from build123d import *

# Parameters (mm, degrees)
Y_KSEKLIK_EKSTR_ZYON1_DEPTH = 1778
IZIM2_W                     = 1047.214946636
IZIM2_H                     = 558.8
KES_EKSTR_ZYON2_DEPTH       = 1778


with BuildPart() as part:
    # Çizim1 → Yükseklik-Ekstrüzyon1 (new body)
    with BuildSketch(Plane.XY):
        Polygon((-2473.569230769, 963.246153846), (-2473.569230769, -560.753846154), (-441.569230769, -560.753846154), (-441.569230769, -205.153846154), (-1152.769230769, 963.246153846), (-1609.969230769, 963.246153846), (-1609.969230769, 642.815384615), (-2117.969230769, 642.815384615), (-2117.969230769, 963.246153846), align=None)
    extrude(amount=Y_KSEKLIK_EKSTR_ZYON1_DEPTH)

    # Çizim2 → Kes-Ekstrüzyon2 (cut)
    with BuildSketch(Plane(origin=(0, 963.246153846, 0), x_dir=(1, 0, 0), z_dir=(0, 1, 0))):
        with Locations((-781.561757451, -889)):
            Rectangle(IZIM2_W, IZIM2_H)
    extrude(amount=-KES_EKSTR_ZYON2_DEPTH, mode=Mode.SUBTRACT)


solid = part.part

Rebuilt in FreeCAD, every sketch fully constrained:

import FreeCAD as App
import Part
import Sketcher
Q = App.Units.Quantity

doc = App.newDocument("Part")
body = doc.addObject("PartDesign::Body", "Body")

sketch1 = body.newObject("Sketcher::SketchObject", "Sketch")
sketch1.AttachmentSupport = (doc.getObject("XY_Plane"), [""])
sketch1.MapMode = "FlatFace"
sketch1.addGeometry(Part.LineSegment(App.Vector(-2473.569231, 963.246154, 0), App.Vector(-2473.569231, -560.753846, 0)), False)
sketch1.addGeometry(Part.LineSegment(App.Vector(-2473.569231, -560.753846, 0), App.Vector(-441.569231, -560.753846, 0)), False)
sketch1.addGeometry(Part.LineSegment(App.Vector(-441.569231, -560.753846, 0), App.Vector(-441.569231, -205.153846, 0)), False)
sketch1.addGeometry(Part.LineSegment(App.Vector(-441.569231, -205.153846, 0), App.Vector(-1152.769231, 963.246154, 0)), False)
sketch1.addGeometry(Part.LineSegment(App.Vector(-1152.769231, 963.246154, 0), App.Vector(-1609.969231, 963.246154, 0)), False)
sketch1.addGeometry(Part.LineSegment(App.Vector(-1609.969231, 963.246154, 0), App.Vector(-1609.969231, 642.815385, 0)), False)
sketch1.addGeometry(Part.LineSegment(App.Vector(-1609.969231, 642.815385, 0), App.Vector(-2117.969231, 642.815385, 0)), False)
sketch1.addGeometry(Part.LineSegment(App.Vector(-2117.969231, 642.815385, 0), App.Vector(-2117.969231, 963.246154, 0)), False)
sketch1.addGeometry(Part.LineSegment(App.Vector(-2117.969231, 963.246154, 0), App.Vector(-2473.569231, 963.246154, 0)), False)
sketch1.addConstraint(Sketcher.Constraint("Coincident", 0, 2, 1, 1))
sketch1.addConstraint(Sketcher.Constraint("Coincident", 1, 2, 2, 1))
sketch1.addConstraint(Sketcher.Constraint("Coincident", 2, 2, 3, 1))
sketch1.addConstraint(Sketcher.Constraint("Coincident", 3, 2, 4, 1))
sketch1.addConstraint(Sketcher.Constraint("Coincident", 4, 2, 5, 1))
sketch1.addConstraint(Sketcher.Constraint("Coincident", 5, 2, 6, 1))
sketch1.addConstraint(Sketcher.Constraint("Coincident", 6, 2, 7, 1))
sketch1.addConstraint(Sketcher.Constraint("Coincident", 7, 2, 8, 1))
sketch1.addConstraint(Sketcher.Constraint("Coincident", 8, 2, 0, 1))
sketch1.addConstraint(Sketcher.Constraint("Vertical", 0))
sketch1.addConstraint(Sketcher.Constraint("Horizontal", 1))
sketch1.addConstraint(Sketcher.Constraint("Vertical", 2))
sketch1.addConstraint(Sketcher.Constraint("Horizontal", 4))
sketch1.addConstraint(Sketcher.Constraint("Vertical", 5))
sketch1.addConstraint(Sketcher.Constraint("Horizontal", 6))
sketch1.addConstraint(Sketcher.Constraint("Vertical", 7))
sketch1.addConstraint(Sketcher.Constraint("Horizontal", 8))
sketch1.addConstraint(Sketcher.Constraint("Horizontal", 4, 2, 7, 2))
sketch1.addConstraint(Sketcher.Constraint("Equal", 8, 2))
sketch1.addConstraint(Sketcher.Constraint("DistanceX", 1, 1, 1, 2, Q("80 in")))
sketch1.addConstraint(Sketcher.Constraint("DistanceX", 4, 2, 4, 1, Q("18 in")))
sketch1.addConstraint(Sketcher.Constraint("DistanceX", 6, 2, 6, 1, Q("20 in")))
sketch1.addConstraint(Sketcher.Constraint("DistanceX", 8, 2, 8, 1, Q("14 in")))
sketch1.addConstraint(Sketcher.Constraint("DistanceY", 0, 2, 0, 1, Q("60 in")))
sketch1.addConstraint(Sketcher.Constraint("DistanceY", 5, 2, 5, 1, 320.430769))
sketch1.addConstraint(Sketcher.Constraint("DistanceX", 0, 2, -1, 1, 2473.569231))
sketch1.addConstraint(Sketcher.Constraint("DistanceY", 0, 2, -1, 1, 560.753846))
pad1 = body.newObject("PartDesign::Pad", "Pad")
pad1.Profile = sketch1
pad1.Length = Q("70 in")

sketch2 = body.newObject("Sketcher::SketchObject", "Sketch001")
sketch2.AttachmentSupport = (doc.getObject("XZ_Plane"), [""])
sketch2.MapMode = "FlatFace"
sketch2.AttachmentOffset = App.Placement(App.Vector(0, 0, -963.246154), App.Rotation())
sketch2.addGeometry(Part.LineSegment(App.Vector(-1305.169231, 609.6, 0), App.Vector(-1305.169231, 1168.4, 0)), False)
sketch2.addGeometry(Part.LineSegment(App.Vector(-1305.169231, 1168.4, 0), App.Vector(-257.954284, 1168.4, 0)), False)
sketch2.addGeometry(Part.LineSegment(App.Vector(-257.954284, 1168.4, 0), App.Vector(-257.954284, 609.6, 0)), False)
sketch2.addGeometry(Part.LineSegment(App.Vector(-257.954284, 609.6, 0), App.Vector(-1305.169231, 609.6, 0)), False)
sketch2.addConstraint(Sketcher.Constraint("Coincident", 0, 2, 1, 1))
sketch2.addConstraint(Sketcher.Constraint("Coincident", 1, 2, 2, 1))
sketch2.addConstraint(Sketcher.Constraint("Coincident", 2, 2, 3, 1))
sketch2.addConstraint(Sketcher.Constraint("Coincident", 3, 2, 0, 1))
sketch2.addConstraint(Sketcher.Constraint("Vertical", 0))
sketch2.addConstraint(Sketcher.Constraint("Horizontal", 1))
sketch2.addConstraint(Sketcher.Constraint("Vertical", 2))
sketch2.addConstraint(Sketcher.Constraint("Horizontal", 3))
sketch2.addConstraint(Sketcher.Constraint("DistanceY", 0, 1, 0, 2, Q("22 in")))
sketch2.addConstraint(Sketcher.Constraint("DistanceY", -1, 1, 0, 2, Q("46 in")))
sketch2.addConstraint(Sketcher.Constraint("DistanceX", 1, 1, 1, 2, 1047.214947))
sketch2.addConstraint(Sketcher.Constraint("DistanceX", 0, 2, -1, 1, 1305.169231))
pocket1 = body.newObject("PartDesign::Pocket", "Pocket")
pocket1.Profile = sketch2
pocket1.Length = Q("70 in")
pocket1.Reversed = True

doc.recompute()
